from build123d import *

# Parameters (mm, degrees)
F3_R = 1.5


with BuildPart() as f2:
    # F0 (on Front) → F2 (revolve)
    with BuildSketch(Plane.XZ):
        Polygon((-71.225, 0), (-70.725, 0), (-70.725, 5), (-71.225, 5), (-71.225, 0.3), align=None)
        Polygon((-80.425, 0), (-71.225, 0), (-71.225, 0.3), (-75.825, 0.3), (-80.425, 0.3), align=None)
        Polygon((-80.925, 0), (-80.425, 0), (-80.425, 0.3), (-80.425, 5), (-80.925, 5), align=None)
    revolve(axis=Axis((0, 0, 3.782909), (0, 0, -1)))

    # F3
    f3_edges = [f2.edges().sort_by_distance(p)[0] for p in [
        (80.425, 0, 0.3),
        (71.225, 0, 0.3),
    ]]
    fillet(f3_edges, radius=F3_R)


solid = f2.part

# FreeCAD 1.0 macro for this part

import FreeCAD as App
import Part
import Sketcher

V = App.Vector
Q = App.Units.Quantity


def edges_at(feature, points):
    """Names of the edges that pass closest to the given points."""
    edges = feature.Shape.Edges
    near = lambda p: min(range(len(edges)), key=lambda i: edges[i].distToShape(Part.Vertex(*p))[0])
    return sorted({f"Edge{near(p) + 1}" for p in points})

doc = App.newDocument("Part")
body = doc.addObject("PartDesign::Body", "Body")

sketch1 = doc.addObject("Sketcher::SketchObject", "Sketch")
body.addObject(sketch1)
sketch1.AttachmentSupport = (doc.XZ_Plane, [""])
sketch1.MapMode = "FlatFace"
sketch1.addGeometry([
    Part.LineSegment(V(-70.725, 0, 0), V(-70.725, 5, 0)),
    Part.LineSegment(V(-70.725, 5, 0), V(-71.225, 5, 0)),
    Part.LineSegment(V(-71.225, 5, 0), V(-71.225, 0.3, 0)),
    Part.LineSegment(V(-71.225, 0.3, 0), V(-80.425, 0.3, 0)),
    Part.LineSegment(V(-80.425, 0.3, 0), V(-80.425, 5, 0)),
    Part.LineSegment(V(-80.425, 5, 0), V(-80.925, 5, 0)),
    Part.LineSegment(V(-80.925, 5, 0), V(-80.925, 0, 0)),
    Part.LineSegment(V(-80.925, 0, 0), V(-70.725, 0, 0)),
], False)
sketch1.addConstraint([
    Sketcher.Constraint("Coincident", 0, 2, 1, 1),
    Sketcher.Constraint("Coincident", 1, 2, 2, 1),
    Sketcher.Constraint("Coincident", 2, 2, 3, 1),
    Sketcher.Constraint("Coincident", 3, 2, 4, 1),
    Sketcher.Constraint("Coincident", 4, 2, 5, 1),
    Sketcher.Constraint("Coincident", 5, 2, 6, 1),
    Sketcher.Constraint("Coincident", 6, 2, 7, 1),
    Sketcher.Constraint("Coincident", 7, 2, 0, 1),
    Sketcher.Constraint("Vertical", 0),
    Sketcher.Constraint("Horizontal", 1),
    Sketcher.Constraint("Vertical", 2),
    Sketcher.Constraint("Horizontal", 3),
    Sketcher.Constraint("Vertical", 4),
    Sketcher.Constraint("Horizontal", 5),
    Sketcher.Constraint("Vertical", 6),
    Sketcher.Constraint("Horizontal", 7),
    Sketcher.Constraint("PointOnObject", 6, 2, -1),
    Sketcher.Constraint("Horizontal", 1, 2, 4, 2),
    Sketcher.Constraint("Equal", 1, 5),
    Sketcher.Constraint("DistanceY", 0, 1, 0, 2, Q("5 mm")),
    Sketcher.Constraint("DistanceX", 1, 2, 1, 1, Q("0.5 mm")),
    Sketcher.Constraint("DistanceX", 3, 2, 3, 1, Q("9.2 mm")),
    Sketcher.Constraint("DistanceY", 2, 2, 2, 1, Q("4.7 mm")),
    Sketcher.Constraint("DistanceX", 0, 2, -1, 1, Q("70.725 mm")),
])
revolution = doc.addObject("PartDesign::Revolution", "Revolution")
body.addObject(revolution)
revolution.Profile = sketch1
revolution.ReferenceAxis = (sketch1, ["V_Axis"])
revolution.Angle = 360
doc.recompute()

fillet = doc.addObject("PartDesign::Fillet", "Fillet")
body.addObject(fillet)
fillet.Base = (revolution, edges_at(revolution, [(80.425, 0, 0.3), (71.225, 0, 0.3)]))
fillet.Radius = 1.5

doc.recompute()
